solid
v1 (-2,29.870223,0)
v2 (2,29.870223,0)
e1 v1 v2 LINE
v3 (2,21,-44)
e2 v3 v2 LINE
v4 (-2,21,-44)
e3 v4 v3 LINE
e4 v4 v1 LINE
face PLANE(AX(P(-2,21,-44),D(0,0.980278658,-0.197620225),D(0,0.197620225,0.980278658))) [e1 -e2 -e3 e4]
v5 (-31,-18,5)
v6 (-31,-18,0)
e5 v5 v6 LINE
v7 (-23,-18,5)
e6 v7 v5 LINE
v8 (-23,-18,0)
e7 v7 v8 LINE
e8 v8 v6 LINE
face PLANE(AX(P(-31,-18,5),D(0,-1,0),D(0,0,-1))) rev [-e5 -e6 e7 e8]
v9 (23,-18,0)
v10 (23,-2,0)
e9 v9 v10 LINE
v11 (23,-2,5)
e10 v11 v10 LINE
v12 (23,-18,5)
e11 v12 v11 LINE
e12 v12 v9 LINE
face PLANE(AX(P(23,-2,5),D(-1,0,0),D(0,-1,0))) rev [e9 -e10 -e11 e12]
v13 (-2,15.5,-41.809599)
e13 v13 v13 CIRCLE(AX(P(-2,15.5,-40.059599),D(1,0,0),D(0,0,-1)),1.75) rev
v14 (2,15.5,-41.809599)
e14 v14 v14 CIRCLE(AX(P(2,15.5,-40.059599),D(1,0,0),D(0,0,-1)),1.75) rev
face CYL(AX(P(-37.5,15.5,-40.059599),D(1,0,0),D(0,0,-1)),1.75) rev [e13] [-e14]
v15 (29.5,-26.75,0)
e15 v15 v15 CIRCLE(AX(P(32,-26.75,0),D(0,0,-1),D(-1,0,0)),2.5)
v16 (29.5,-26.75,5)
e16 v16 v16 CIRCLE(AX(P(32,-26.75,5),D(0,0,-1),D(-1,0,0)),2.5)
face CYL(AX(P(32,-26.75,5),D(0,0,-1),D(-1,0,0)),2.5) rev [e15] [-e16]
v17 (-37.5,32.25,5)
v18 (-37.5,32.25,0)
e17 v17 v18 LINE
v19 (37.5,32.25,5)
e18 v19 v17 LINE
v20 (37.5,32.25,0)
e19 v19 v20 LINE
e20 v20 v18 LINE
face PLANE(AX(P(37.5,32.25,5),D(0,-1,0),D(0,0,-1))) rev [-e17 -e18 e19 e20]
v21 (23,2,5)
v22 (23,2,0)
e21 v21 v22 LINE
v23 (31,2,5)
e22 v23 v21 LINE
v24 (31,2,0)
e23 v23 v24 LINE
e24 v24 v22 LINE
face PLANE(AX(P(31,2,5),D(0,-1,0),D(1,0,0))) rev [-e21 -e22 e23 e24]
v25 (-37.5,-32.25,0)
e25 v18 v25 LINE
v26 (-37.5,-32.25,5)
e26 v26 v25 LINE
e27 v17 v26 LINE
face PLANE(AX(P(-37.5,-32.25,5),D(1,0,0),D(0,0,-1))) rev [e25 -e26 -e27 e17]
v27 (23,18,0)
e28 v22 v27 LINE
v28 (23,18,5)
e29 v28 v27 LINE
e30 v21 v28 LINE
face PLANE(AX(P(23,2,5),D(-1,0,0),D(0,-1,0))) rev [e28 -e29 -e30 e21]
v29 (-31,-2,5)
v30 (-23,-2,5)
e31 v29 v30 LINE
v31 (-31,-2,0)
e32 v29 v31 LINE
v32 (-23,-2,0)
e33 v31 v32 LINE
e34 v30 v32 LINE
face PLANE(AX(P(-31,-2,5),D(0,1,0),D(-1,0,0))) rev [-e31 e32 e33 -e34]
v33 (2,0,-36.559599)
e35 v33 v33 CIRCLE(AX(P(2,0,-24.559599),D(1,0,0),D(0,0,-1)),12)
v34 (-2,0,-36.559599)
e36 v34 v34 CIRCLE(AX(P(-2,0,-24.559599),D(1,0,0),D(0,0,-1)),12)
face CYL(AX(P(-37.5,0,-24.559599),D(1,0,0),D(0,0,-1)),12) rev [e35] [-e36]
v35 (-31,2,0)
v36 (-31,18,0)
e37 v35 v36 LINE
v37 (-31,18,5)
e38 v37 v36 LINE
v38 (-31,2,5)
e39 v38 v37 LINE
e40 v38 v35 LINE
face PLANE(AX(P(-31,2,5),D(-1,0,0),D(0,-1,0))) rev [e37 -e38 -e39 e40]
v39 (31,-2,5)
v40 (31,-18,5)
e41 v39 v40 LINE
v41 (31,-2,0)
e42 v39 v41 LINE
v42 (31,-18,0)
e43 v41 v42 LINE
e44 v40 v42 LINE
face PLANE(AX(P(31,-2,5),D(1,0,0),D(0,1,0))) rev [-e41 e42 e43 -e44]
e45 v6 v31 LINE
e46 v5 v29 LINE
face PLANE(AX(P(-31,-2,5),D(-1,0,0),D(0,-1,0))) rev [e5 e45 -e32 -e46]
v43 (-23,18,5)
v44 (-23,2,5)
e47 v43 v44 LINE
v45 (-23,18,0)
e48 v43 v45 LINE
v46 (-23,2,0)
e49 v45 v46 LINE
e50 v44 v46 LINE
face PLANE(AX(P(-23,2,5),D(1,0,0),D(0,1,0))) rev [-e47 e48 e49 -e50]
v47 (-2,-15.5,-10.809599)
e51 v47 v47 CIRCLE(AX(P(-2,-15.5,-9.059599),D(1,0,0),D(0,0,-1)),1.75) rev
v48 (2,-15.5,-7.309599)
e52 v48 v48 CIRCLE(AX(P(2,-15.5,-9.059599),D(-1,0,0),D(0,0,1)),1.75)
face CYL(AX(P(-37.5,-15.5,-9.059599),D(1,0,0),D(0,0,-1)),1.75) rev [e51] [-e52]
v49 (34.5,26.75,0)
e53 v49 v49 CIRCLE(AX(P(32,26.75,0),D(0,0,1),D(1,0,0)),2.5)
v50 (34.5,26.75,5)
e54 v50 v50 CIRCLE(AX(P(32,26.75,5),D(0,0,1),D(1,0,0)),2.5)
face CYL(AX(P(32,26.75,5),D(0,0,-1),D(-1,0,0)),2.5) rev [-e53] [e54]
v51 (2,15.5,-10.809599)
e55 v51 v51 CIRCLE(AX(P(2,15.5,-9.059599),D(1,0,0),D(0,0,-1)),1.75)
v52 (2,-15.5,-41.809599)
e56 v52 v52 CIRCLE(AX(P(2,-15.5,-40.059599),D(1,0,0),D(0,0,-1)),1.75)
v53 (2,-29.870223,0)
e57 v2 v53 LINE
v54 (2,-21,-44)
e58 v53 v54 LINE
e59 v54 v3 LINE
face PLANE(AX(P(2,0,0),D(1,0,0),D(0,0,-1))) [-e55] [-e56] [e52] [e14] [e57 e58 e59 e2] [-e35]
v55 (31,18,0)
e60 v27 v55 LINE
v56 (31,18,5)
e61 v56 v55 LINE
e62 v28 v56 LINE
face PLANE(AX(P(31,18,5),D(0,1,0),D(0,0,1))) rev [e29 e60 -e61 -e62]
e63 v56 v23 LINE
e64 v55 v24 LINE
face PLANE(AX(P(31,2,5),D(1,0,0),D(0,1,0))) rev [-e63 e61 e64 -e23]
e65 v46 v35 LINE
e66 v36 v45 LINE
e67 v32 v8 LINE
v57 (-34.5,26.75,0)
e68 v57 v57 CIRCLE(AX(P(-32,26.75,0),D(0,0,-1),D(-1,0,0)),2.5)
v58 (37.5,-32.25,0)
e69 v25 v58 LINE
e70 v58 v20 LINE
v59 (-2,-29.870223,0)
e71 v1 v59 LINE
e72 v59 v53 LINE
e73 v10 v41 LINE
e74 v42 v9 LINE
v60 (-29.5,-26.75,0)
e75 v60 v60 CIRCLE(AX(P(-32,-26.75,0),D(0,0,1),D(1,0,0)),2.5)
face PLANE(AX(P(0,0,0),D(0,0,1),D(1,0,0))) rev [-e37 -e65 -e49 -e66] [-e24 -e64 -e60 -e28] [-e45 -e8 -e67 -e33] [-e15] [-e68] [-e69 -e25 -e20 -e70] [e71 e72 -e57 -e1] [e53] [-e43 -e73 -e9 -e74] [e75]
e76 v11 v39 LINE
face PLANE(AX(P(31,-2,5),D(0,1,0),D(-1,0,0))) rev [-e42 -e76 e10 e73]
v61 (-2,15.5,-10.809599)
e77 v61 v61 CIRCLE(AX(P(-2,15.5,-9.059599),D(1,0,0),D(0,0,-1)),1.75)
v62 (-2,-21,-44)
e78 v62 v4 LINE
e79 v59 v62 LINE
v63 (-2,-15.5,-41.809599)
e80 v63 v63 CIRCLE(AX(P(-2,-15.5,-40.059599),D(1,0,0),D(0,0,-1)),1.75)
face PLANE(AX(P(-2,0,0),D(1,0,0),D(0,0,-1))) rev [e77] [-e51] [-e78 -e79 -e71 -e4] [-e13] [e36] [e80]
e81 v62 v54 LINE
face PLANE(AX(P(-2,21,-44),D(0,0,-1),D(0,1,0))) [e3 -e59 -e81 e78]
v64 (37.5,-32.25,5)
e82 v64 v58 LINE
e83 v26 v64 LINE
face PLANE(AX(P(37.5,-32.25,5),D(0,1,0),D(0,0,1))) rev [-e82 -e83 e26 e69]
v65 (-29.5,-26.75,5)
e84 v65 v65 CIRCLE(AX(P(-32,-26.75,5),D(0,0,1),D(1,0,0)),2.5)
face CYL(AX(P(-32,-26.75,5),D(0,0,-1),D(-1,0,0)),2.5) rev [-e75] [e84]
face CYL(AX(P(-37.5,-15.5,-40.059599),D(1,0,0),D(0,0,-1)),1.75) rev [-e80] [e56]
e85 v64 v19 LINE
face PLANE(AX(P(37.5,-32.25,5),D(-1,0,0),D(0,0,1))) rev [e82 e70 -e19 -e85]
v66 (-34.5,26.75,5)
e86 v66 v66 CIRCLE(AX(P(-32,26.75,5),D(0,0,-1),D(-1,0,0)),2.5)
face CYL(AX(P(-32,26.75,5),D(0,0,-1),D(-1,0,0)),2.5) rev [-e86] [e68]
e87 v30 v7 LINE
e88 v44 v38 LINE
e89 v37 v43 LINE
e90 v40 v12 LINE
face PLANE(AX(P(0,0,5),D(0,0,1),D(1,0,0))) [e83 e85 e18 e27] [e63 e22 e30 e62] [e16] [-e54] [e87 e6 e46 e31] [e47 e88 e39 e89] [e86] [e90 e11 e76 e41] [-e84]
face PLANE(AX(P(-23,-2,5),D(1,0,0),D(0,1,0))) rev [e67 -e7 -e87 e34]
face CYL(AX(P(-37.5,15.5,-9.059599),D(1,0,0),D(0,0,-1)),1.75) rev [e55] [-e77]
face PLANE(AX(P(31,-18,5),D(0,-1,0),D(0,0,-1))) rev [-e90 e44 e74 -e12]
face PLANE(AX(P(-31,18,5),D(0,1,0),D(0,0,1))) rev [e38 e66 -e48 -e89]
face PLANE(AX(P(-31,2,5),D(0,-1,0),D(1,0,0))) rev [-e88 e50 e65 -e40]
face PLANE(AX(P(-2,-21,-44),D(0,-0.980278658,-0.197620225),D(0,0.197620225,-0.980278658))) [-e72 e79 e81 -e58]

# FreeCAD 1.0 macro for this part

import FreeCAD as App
import Part
import Sketcher

V = App.Vector
Q = App.Units.Quantity


def add_polygon(sketch, points):
    """Adds a closed chain of lines whose ends are joined by coincident constraints."""
    first, n = sketch.GeometryCount, len(points)
    for a, b in zip(points, points[1:] + points[:1]):
        sketch.addGeometry(Part.LineSegment(App.Vector(*a, 0), App.Vector(*b, 0)), False)
    for i in range(n):
        sketch.addConstraint(Sketcher.Constraint("Coincident", first + i, 2, first + (i + 1) % n, 1))

doc = App.newDocument("Part")
body = doc.addObject("PartDesign::Body", "Body")

sketch1 = doc.addObject("Sketcher::SketchObject", "Sketch")
body.addObject(sketch1)
sketch1.AttachmentSupport = (doc.XY_Plane, [""])
sketch1.MapMode = "FlatFace"
add_polygon(sketch1, [(-37.5, 32.25), (-37.5, -32.25), (37.5, -32.25), (37.5, 32.25)])
sketch1.addConstraint([
    Sketcher.Constraint("Vertical", 0),
    Sketcher.Constraint("Horizontal", 1),
    Sketcher.Constraint("Vertical", 2),
    Sketcher.Constraint("Horizontal", 3),
    Sketcher.Constraint("Symmetric", 0, 2, 2, 2, -1, 1),
    Sketcher.Constraint("DistanceX", 1, 1, 1, 2, Q("75 mm")),
    Sketcher.Constraint("DistanceY", 0, 2, 0, 1, Q("64.5 mm")),
])
pad1 = doc.addObject("PartDesign::Pad", "Pad")
body.addObject(pad1)
pad1.Profile = sketch1
pad1.Length = 5

sketch2 = doc.addObject("Sketcher::SketchObject", "Sketch001")
body.addObject(sketch2)
sketch2.AttachmentSupport = (doc.YZ_Plane, [""])
sketch2.MapMode = "FlatFace"
add_polygon(sketch2, [(29.870223, 0), (-29.870223, 0), (-21, -44), (21, -44)])
sketch2.addConstraint([
    Sketcher.Constraint("Horizontal", 0),
    Sketcher.Constraint("Horizontal", 2),
    Sketcher.Constraint("Symmetric", 0, 2, 3, 2, -1, 1),
    Sketcher.Constraint("Equal", 1, 3),
    Sketcher.Constraint("DistanceX", 2, 1, 2, 2, Q("42 mm")),
    Sketcher.Constraint("DistanceY", 1, 2, -1, 1, Q("44 mm")),
    Sketcher.Constraint("DistanceX", 0, 2, 0, 1, Q("59.740445 mm")),
])
pad2 = doc.addObject("PartDesign::Pad", "Pad001")
body.addObject(pad2)
pad2.Profile = sketch2
pad2.Type = "TwoLengths"
pad2.Length = 2
pad2.Length2 = 2

sketch3 = doc.addObject("Sketcher::SketchObject", "Sketch002")
body.addObject(sketch3)
sketch3.AttachmentSupport = (doc.YZ_Plane, [""])
sketch3.MapMode = "FlatFace"
sketch3.AttachmentOffset = App.Placement(V(0, 0, 2), App.Rotation())
sketch3.addGeometry([
    Part.Circle(V(0, -24.559599, 0), V(0, 0, 1), 12),
    Part.Circle(V(15.5, -9.059599, 0), V(0, 0, 1), 1.75),
    Part.Circle(V(15.5, -40.059599, 0), V(0, 0, 1), 1.75),
    Part.Circle(V(-15.5, -40.059599, 0), V(0, 0, 1), 1.75),
    Part.Circle(V(-15.5, -9.059599, 0), V(0, 0, 1), 1.75),
], False)
sketch3.addConstraint([
    Sketcher.Constraint("Equal", 1, 2),
    Sketcher.Constraint("Equal", 2, 3),
    Sketcher.Constraint("Equal", 3, 4),
    Sketcher.Constraint("Symmetric", 2, 3, 3, 3, -2),
    Sketcher.Constraint("Symmetric", 1, 3, 4, 3, -2),
    Sketcher.Constraint("PointOnObject", 0, 3, -2),
    Sketcher.Constraint("Vertical", 1, 3, 2, 3),
    Sketcher.Constraint("Diameter", 0, Q("24 mm")),
    Sketcher.Constraint("Diameter", 1, Q("3.5 mm")),
    Sketcher.Constraint("DistanceY", 2, 3, 1, 3, Q("31 mm")),
    Sketcher.Constraint("DistanceX", 3, 3, 2, 3, Q("31 mm")),
    Sketcher.Constraint("DistanceY", 0, 3, 1, 3, Q("15.5 mm")),
    Sketcher.Constraint("DistanceY", 0, 3, -1, 1, Q("24.559599 mm")),
])
pocket1 = doc.addObject("PartDesign::Pocket", "Pocket")
body.addObject(pocket1)
pocket1.Profile = sketch3
pocket1.Type = "ThroughAll"

sketch4 = doc.addObject("Sketcher::SketchObject", "Sketch003")
body.addObject(sketch4)
sketch4.AttachmentSupport = (doc.XY_Plane, [""])
sketch4.MapMode = "FlatFace"
sketch4.addGeometry([
    Part.Circle(V(-32, 26.75, 0), V(0, 0, 1), 2.5),
    Part.Circle(V(-32, -26.75, 0), V(0, 0, 1), 2.5),
    Part.Circle(V(32, -26.75, 0), V(0, 0, 1), 2.5),
    Part.Circle(V(32, 26.75, 0), V(0, 0, 1), 2.5),
], False)
sketch4.addConstraint([
    Sketcher.Constraint("Equal", 0, 1),
    Sketcher.Constraint("Equal", 1, 2),
    Sketcher.Constraint("Equal", 2, 3),
    Sketcher.Constraint("Symmetric", 0, 3, 2, 3, -1, 1),
    Sketcher.Constraint("Symmetric", 1, 3, 3, 3, -1, 1),
    Sketcher.Constraint("Symmetric", 1, 3, 2, 3, -2),
    Sketcher.Constraint("Diameter", 0, Q("5 mm")),
    Sketcher.Constraint("DistanceX", 0, 3, -1, 1, Q("32 mm")),
    Sketcher.Constraint("DistanceY", 1, 3, 0, 3, Q("53.5 mm")),
])
pocket2 = doc.addObject("PartDesign::Pocket", "Pocket001")
body.addObject(pocket2)
pocket2.Profile = sketch4
pocket2.Type = "ThroughAll"
pocket2.Reversed = True

sketch5 = doc.addObject("Sketcher::SketchObject", "Sketch004")
body.addObject(sketch5)
sketch5.AttachmentSupport = (doc.XY_Plane, [""])
sketch5.MapMode = "FlatFace"
add_polygon(sketch5, [(31, 18), (31, 2), (23, 2), (23, 18)])
add_polygon(sketch5, [(31, -2), (31, -18), (23, -18), (23, -2)])
add_polygon(sketch5, [(-23, -2), (-23, -18), (-31, -18), (-31, -2)])
add_polygon(sketch5, [(-23, 18), (-23, 2), (-31, 2), (-31, 18)])
sketch5.addConstraint([
    Sketcher.Constraint("Vertical", 0),
    Sketcher.Constraint("Horizontal", 1),
    Sketcher.Constraint("Vertical", 2),
    Sketcher.Constraint("Horizontal", 3),
    Sketcher.Constraint("Vertical", 4),
    Sketcher.Constraint("Horizontal", 5),
    Sketcher.Constraint("Vertical", 6),
    Sketcher.Constraint("Horizontal", 7),
    Sketcher.Constraint("Vertical", 8),
    Sketcher.Constraint("Horizontal", 9),
    Sketcher.Constraint("Vertical", 10),
    Sketcher.Constraint("Horizontal", 11),
    Sketcher.Constraint("Vertical", 12),
    Sketcher.Constraint("Horizontal", 13),
    Sketcher.Constraint("Vertical", 14),
    Sketcher.Constraint("Horizontal", 15),
    Sketcher.Constraint("Symmetric", 2, 2, 8, 2, -1, 1),
    Sketcher.Constraint("Symmetric", 0, 2, 10, 2, -1, 1),
    Sketcher.Constraint("Symmetric", 6, 2, 12, 2, -1, 1),
    Sketcher.Constraint("Symmetric", 4, 2, 14, 2, -1, 1),
    Sketcher.Constraint("Symmetric", 5, 2, 8, 2, -2),
    Sketcher.Constraint("Symmetric", 7, 2, 10, 2, -2),
    Sketcher.Constraint("DistanceX", 1, 2, 1, 1, Q("8 mm")),
    Sketcher.Constraint("DistanceY", 0, 2, 0, 1, Q("16 mm")),
    Sketcher.Constraint("DistanceX", -1, 1, 0, 2, Q("31 mm")),
    Sketcher.Constraint("DistanceY", -1, 1, 0, 2, Q("2 mm")),
])
pocket3 = doc.addObject("PartDesign::Pocket", "Pocket002")
body.addObject(pocket3)
pocket3.Profile = sketch5
pocket3.Type = "ThroughAll"
pocket3.Reversed = True

doc.recompute()
